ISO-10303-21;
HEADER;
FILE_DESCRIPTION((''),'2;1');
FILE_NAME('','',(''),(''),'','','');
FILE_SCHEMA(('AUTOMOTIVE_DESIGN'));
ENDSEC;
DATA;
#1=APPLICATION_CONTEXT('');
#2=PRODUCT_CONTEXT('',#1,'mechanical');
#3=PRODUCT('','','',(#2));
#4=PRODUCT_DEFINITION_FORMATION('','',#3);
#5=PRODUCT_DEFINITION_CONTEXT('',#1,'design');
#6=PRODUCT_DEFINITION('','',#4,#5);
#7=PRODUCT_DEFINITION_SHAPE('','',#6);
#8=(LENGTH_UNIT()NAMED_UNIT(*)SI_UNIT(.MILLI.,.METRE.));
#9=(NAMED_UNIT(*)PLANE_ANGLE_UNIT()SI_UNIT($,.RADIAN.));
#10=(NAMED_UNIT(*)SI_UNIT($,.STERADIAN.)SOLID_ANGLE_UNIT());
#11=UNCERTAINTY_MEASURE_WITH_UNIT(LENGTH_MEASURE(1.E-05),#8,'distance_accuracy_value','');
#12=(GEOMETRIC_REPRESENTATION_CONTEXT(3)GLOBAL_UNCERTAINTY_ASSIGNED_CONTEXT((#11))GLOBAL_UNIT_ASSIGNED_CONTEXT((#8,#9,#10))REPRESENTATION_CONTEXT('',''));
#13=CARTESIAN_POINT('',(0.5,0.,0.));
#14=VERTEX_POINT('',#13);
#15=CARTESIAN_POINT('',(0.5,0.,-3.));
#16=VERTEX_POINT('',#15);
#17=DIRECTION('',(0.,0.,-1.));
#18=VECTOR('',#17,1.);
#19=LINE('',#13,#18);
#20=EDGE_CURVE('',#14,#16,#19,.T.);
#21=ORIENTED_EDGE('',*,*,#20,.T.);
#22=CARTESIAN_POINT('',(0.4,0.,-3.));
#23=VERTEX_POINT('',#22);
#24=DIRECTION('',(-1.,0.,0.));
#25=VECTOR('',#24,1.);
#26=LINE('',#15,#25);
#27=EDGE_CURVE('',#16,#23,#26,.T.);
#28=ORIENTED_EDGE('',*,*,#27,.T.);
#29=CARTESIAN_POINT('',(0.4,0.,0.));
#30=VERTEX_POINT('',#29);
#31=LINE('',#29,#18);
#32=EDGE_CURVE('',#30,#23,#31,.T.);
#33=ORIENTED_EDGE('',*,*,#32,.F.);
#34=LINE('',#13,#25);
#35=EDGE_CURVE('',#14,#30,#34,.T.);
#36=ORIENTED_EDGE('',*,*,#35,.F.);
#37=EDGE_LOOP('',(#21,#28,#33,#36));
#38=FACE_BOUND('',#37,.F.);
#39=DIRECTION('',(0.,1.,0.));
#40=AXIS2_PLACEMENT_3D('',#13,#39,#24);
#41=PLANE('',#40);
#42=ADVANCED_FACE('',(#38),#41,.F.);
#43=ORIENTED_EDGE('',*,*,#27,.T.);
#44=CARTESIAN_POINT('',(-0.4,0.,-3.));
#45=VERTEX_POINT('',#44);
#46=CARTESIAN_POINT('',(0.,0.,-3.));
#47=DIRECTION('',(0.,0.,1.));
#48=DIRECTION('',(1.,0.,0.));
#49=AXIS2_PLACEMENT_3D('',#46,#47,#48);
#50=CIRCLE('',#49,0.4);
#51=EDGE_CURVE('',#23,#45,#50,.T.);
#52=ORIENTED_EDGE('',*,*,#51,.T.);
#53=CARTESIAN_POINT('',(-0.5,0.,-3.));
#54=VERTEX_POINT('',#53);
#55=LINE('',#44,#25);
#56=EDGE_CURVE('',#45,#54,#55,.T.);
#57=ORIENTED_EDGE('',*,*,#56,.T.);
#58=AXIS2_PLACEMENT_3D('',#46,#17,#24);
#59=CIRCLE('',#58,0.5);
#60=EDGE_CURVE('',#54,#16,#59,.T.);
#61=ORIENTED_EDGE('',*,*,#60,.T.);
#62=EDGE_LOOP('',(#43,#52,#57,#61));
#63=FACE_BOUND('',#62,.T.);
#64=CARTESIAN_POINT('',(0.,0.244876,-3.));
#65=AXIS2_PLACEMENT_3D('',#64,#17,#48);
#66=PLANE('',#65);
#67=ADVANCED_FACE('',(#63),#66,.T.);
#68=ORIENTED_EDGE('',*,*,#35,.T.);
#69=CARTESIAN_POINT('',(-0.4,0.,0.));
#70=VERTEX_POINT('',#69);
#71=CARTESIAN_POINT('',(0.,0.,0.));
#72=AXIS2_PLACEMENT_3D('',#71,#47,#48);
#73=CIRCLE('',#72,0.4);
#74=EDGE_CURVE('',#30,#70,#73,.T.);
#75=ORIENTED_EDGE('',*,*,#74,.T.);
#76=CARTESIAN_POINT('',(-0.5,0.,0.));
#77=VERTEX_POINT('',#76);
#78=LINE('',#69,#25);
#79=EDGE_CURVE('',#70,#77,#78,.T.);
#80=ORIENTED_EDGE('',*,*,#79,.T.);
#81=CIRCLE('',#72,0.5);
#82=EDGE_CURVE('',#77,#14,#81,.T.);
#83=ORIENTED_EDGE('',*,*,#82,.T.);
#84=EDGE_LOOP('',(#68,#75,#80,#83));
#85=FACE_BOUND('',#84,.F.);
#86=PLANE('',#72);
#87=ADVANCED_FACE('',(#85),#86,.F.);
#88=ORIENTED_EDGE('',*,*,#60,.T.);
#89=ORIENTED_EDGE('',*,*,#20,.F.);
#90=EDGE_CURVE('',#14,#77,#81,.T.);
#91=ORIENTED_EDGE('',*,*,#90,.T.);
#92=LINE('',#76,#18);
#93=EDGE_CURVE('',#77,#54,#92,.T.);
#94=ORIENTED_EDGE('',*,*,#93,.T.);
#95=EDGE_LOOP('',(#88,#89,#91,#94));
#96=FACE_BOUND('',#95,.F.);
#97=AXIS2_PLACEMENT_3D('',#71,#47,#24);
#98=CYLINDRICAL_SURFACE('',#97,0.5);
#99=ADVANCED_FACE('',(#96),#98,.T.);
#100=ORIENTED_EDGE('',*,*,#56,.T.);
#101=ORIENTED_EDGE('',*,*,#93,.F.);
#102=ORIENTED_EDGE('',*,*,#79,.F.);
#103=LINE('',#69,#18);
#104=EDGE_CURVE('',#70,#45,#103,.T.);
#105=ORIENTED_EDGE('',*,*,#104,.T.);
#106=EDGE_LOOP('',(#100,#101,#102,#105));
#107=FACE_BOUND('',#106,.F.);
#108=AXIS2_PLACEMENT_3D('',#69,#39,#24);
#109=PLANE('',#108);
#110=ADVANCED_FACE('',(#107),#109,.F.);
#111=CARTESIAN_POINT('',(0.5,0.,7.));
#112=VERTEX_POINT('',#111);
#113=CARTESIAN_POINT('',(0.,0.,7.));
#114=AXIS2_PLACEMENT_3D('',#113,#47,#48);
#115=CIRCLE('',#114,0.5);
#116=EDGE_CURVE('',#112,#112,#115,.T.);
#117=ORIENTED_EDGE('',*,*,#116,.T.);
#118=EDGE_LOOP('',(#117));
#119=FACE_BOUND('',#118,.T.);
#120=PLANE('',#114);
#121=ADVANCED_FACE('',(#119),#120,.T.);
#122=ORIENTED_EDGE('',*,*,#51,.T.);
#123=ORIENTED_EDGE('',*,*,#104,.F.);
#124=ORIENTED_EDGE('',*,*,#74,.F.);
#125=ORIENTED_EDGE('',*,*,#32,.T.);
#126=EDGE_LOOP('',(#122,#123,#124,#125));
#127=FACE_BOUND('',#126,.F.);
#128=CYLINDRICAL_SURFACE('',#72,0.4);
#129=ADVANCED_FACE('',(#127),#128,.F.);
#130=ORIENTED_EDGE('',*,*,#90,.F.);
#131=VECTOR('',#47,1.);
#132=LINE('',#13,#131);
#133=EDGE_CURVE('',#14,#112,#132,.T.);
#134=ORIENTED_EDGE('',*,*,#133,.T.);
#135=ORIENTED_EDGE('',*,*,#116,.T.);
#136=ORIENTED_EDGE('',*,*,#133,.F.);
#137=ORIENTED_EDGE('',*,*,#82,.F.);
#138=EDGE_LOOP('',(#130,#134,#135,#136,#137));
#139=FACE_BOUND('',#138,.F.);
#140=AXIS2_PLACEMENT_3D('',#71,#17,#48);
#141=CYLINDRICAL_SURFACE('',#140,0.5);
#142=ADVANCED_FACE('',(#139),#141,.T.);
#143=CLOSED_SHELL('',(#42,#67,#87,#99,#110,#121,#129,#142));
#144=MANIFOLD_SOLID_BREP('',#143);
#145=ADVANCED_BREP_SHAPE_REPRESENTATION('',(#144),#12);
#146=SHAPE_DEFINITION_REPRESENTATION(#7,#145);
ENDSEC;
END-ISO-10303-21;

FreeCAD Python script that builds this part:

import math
import FreeCAD as App
import Part
import Sketcher
Q = App.Units.Quantity

doc = App.newDocument("Part")
body = doc.addObject("PartDesign::Body", "Body")

sketch1 = body.newObject("Sketcher::SketchObject", "Sketch")
sketch1.AttachmentSupport = (doc.getObject("XY_Plane"), [""])
sketch1.MapMode = "FlatFace"
sketch1.addGeometry(Part.Circle(App.Vector(0, 0, 0), App.Vector(0, 0, 1), 0.5), False)
sketch1.addConstraint([
    Sketcher.Constraint("Coincident", 0, 3, -1, 1),
    Sketcher.Constraint("Diameter", 0, Q("1 mm")),
])
pad1 = body.newObject("PartDesign::Pad", "Pad")
pad1.Profile = sketch1
pad1.Length = 7

sketch2 = body.newObject("Sketcher::SketchObject", "Sketch001")
sketch2.AttachmentSupport = (doc.getObject("XY_Plane"), [""])
sketch2.MapMode = "FlatFace"
sketch2.addGeometry([
    Part.LineSegment(App.Vector(-0.4, 0, 0), App.Vector(-0.5, 0, 0)),
    Part.ArcOfCircle(Part.Circle(App.Vector(0, 0, 0), App.Vector(0, 0, 1), 0.5), math.radians(0), math.radians(180)),
    Part.LineSegment(App.Vector(0.5, 0, 0), App.Vector(0.4, 0, 0)),
    Part.ArcOfCircle(Part.Circle(App.Vector(0, 0, 0), App.Vector(0, 0, 1), 0.4), math.radians(0), math.radians(180)),
], False)
sketch2.addConstraint([
    Sketcher.Constraint("Coincident", 0, 2, 1, 2),
    Sketcher.Constraint("Coincident", 1, 1, 2, 1),
    Sketcher.Constraint("Coincident", 2, 2, 3, 1),
    Sketcher.Constraint("Coincident", 3, 2, 0, 1),
    Sketcher.Constraint("Horizontal", 0),
    Sketcher.Constraint("Horizontal", 2),
    Sketcher.Constraint("Coincident", 1, 3, -1, 1),
    Sketcher.Constraint("Coincident", 3, 3, -1, 1),
    Sketcher.Constraint("PointOnObject", 0, 2, -1),
    Sketcher.Constraint("PointOnObject", 1, 1, -1),
    Sketcher.Constraint("Radius", 1, Q("0.5 mm")),
    Sketcher.Constraint("Radius", 3, Q("0.4 mm")),
])
pad2 = body.newObject("PartDesign::Pad", "Pad001")
pad2.Profile = sketch2
pad2.Length = 3
pad2.Reversed = True

doc.recompute()
